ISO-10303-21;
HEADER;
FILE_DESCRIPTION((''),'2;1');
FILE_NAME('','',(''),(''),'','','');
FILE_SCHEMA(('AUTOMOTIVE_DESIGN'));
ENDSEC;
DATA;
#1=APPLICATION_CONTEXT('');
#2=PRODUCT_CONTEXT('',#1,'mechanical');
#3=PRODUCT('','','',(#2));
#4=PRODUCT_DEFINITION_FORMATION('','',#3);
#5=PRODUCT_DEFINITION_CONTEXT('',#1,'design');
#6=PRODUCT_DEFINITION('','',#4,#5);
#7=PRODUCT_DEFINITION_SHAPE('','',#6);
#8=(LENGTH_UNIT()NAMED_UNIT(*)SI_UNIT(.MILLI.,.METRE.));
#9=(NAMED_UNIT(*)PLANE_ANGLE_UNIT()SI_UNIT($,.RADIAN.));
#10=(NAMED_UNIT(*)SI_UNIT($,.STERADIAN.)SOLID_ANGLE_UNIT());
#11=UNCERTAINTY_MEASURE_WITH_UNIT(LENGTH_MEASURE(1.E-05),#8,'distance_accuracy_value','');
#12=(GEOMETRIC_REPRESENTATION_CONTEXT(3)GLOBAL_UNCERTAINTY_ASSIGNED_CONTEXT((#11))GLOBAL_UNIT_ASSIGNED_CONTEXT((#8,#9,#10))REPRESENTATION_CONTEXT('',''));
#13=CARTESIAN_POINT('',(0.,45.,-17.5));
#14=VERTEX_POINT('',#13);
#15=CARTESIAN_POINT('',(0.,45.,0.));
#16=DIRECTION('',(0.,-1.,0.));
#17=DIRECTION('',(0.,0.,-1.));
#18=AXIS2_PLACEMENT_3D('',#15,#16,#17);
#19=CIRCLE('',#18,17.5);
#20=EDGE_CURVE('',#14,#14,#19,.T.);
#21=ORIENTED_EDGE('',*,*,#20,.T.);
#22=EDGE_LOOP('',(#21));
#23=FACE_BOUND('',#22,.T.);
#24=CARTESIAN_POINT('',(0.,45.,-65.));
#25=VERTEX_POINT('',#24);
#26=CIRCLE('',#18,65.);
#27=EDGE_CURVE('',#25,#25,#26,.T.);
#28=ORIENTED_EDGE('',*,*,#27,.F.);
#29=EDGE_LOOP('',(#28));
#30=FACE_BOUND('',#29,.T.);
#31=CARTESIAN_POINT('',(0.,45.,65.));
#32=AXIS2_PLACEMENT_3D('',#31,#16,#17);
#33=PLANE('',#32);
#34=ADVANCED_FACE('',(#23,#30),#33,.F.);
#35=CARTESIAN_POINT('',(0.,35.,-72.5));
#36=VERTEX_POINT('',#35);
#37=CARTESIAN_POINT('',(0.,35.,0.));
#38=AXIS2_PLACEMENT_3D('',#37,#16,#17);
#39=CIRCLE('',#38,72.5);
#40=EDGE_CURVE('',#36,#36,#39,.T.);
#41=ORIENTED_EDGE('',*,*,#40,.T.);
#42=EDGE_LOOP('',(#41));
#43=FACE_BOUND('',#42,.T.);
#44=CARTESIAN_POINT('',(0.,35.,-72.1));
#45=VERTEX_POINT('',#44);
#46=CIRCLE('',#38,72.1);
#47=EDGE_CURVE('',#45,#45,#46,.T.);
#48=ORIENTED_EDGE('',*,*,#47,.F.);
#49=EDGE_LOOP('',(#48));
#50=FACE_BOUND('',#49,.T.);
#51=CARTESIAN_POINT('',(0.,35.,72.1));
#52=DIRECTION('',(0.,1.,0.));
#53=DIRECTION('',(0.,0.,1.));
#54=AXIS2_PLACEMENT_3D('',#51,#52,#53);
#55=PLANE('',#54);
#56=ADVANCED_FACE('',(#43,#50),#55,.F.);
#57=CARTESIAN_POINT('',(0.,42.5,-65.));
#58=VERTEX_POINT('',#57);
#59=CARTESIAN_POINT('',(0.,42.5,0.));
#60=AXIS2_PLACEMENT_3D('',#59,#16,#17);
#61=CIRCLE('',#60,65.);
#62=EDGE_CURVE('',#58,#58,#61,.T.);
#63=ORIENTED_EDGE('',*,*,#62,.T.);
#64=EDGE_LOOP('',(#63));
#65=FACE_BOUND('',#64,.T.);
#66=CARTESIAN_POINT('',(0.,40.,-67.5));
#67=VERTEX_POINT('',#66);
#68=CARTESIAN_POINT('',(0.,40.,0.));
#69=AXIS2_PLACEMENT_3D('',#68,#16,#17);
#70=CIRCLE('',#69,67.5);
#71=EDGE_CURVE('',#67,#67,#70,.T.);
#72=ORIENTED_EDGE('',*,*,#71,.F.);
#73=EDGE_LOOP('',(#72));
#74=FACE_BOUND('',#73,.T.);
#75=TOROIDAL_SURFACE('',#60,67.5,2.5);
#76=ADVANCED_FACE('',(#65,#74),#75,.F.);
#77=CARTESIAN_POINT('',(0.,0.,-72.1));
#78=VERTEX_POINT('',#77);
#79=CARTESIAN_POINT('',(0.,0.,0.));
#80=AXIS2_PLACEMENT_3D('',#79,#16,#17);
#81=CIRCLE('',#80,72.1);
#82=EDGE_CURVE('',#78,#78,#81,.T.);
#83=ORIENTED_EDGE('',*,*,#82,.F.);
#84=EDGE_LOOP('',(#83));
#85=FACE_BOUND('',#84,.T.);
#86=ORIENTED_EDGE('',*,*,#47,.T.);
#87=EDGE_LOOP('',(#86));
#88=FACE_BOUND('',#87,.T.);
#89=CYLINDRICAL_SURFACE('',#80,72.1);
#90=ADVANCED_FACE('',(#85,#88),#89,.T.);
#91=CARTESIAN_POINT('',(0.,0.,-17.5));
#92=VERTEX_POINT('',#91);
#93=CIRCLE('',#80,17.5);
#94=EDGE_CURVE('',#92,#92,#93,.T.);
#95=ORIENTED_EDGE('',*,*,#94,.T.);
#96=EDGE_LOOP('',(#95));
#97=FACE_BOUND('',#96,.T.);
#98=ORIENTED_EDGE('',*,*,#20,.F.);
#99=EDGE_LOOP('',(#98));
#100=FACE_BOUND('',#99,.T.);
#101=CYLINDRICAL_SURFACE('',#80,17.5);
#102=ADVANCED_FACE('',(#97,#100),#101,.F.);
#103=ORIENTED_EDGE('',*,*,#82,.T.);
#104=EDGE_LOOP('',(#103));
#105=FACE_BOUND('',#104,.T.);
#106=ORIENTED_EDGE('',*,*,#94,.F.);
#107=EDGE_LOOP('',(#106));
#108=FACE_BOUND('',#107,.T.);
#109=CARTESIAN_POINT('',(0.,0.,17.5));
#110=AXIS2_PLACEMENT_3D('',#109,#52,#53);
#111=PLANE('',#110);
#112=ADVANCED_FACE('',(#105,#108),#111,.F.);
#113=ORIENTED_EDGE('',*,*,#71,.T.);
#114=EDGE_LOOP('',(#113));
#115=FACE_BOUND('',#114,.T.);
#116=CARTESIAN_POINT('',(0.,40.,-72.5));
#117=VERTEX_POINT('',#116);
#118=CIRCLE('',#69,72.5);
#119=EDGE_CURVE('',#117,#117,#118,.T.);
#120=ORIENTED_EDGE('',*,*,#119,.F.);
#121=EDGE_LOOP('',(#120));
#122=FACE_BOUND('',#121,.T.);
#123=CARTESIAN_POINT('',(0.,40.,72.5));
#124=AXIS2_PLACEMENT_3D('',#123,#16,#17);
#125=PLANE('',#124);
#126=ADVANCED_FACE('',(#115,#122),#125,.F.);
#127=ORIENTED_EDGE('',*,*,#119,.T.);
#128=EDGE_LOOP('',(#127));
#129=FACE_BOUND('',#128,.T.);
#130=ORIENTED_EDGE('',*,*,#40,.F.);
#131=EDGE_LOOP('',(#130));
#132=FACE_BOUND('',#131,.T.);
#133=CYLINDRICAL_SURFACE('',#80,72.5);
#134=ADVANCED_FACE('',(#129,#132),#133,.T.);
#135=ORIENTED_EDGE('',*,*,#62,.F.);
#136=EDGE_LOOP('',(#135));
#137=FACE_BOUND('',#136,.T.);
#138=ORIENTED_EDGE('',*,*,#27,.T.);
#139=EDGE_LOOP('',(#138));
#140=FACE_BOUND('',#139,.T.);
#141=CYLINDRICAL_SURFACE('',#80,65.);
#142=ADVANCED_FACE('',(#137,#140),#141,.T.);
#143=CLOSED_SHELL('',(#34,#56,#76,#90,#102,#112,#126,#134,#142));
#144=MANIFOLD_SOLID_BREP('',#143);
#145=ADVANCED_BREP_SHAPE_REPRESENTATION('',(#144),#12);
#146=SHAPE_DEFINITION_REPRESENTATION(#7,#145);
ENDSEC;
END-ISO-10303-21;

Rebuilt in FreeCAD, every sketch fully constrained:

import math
import FreeCAD as App
import Part
import Sketcher

doc = App.newDocument("Part")
params = doc.addObject("Spreadsheet::Sheet", "Params")
for row, (alias, value) in enumerate([
    ("sketch1_radius", "2.5 mm"),
    ("sketch1_width", "45 mm"),
    ("sketch1_width2", "5 mm"),
    ("sketch1_width3", "35 mm"),
    ("sketch1_height", "47.5 mm"),
    ("revolution_angle", "360 deg"),
], start=1):
    params.set(f"A{row}", alias)
    params.set(f"B{row}", "=" + value)
    params.setAlias(f"B{row}", alias)

body = doc.addObject("PartDesign::Body", "Body")

# Sketch on YZ plane
sketch1 = body.newObject("Sketcher::SketchObject", "Sketch")
sketch1.AttachmentSupport = (doc.getObject("YZ_Plane"), [""])
sketch1.MapMode = "FlatFace"
sketch1.addGeometry(Part.LineSegment(App.Vector(0, 17.5, 0), App.Vector(45, 17.5, 0)), False)
sketch1.addGeometry(Part.LineSegment(App.Vector(45, 17.5, 0), App.Vector(45, 65, 0)), False)
sketch1.addGeometry(Part.LineSegment(App.Vector(45, 65, 0), App.Vector(42.5, 65, 0)), False)
sketch1.addGeometry(Part.ArcOfCircle(Part.Circle(App.Vector(42.5, 67.5, 0), App.Vector(0, 0, 1), 2.5), math.radians(180), math.radians(270)), False)
sketch1.addGeometry(Part.LineSegment(App.Vector(40, 67.5, 0), App.Vector(40, 72.5, 0)), False)
sketch1.addGeometry(Part.LineSegment(App.Vector(40, 72.5, 0), App.Vector(35, 72.5, 0)), False)
sketch1.addGeometry(Part.LineSegment(App.Vector(35, 72.5, 0), App.Vector(35, 72.1, 0)), False)
sketch1.addGeometry(Part.LineSegment(App.Vector(35, 72.1, 0), App.Vector(0, 72.1, 0)), False)
sketch1.addGeometry(Part.LineSegment(App.Vector(0, 72.1, 0), App.Vector(0, 17.5, 0)), False)
sketch1.addConstraint(Sketcher.Constraint("Coincident", 0, 2, 1, 1))
sketch1.addConstraint(Sketcher.Constraint("Coincident", 1, 2, 2, 1))
sketch1.addConstraint(Sketcher.Constraint("Tangent", 2, 2, 3, 2))
sketch1.addConstraint(Sketcher.Constraint("Tangent", 3, 1, 4, 1))
sketch1.addConstraint(Sketcher.Constraint("Coincident", 4, 2, 5, 1))
sketch1.addConstraint(Sketcher.Constraint("Coincident", 5, 2, 6, 1))
sketch1.addConstraint(Sketcher.Constraint("Coincident", 6, 2, 7, 1))
sketch1.addConstraint(Sketcher.Constraint("Coincident", 7, 2, 8, 1))
sketch1.addConstraint(Sketcher.Constraint("Coincident", 8, 2, 0, 1))
sketch1.addConstraint(Sketcher.Constraint("Horizontal", 0))
sketch1.addConstraint(Sketcher.Constraint("Vertical", 1))
sketch1.addConstraint(Sketcher.Constraint("Horizontal", 2))
sketch1.addConstraint(Sketcher.Constraint("Vertical", 4))
sketch1.addConstraint(Sketcher.Constraint("Horizontal", 5))
sketch1.addConstraint(Sketcher.Constraint("Vertical", 6))
sketch1.addConstraint(Sketcher.Constraint("Horizontal", 7))
sketch1.addConstraint(Sketcher.Constraint("Vertical", 8))
sketch1.addConstraint(Sketcher.Constraint("PointOnObject", 7, 2, -2))
sketch1.addConstraint(Sketcher.Constraint("Equal", 5, 4))
sketch1.addConstraint(Sketcher.Constraint("Radius", 3, 2.5))
sketch1.addConstraint(Sketcher.Constraint("DistanceX", 0, 1, 0, 2, 45.0))
sketch1.addConstraint(Sketcher.Constraint("DistanceX", 5, 2, 5, 1, 5.0))
sketch1.addConstraint(Sketcher.Constraint("DistanceX", 7, 2, 7, 1, 35.0))
sketch1.addConstraint(Sketcher.Constraint("DistanceY", 1, 1, 1, 2, 47.5))
sketch1.addConstraint(Sketcher.Constraint("DistanceY", 6, 2, 6, 1, 0.4))
sketch1.addConstraint(Sketcher.Constraint("DistanceY", -1, 1, 1, 2, 65.0))
sketch1.setExpression("Constraints[19]", "Params.sketch1_radius")
sketch1.setExpression("Constraints[20]", "Params.sketch1_width")
sketch1.setExpression("Constraints[21]", "Params.sketch1_width2")
sketch1.setExpression("Constraints[22]", "Params.sketch1_width3")
sketch1.setExpression("Constraints[23]", "Params.sketch1_height")
revolution = body.newObject("PartDesign::Revolution", "Revolution")
revolution.Profile = sketch1
revolution.ReferenceAxis = (sketch1, ["H_Axis"])
revolution.setExpression("Angle", "Params.revolution_angle")

doc.recompute()
